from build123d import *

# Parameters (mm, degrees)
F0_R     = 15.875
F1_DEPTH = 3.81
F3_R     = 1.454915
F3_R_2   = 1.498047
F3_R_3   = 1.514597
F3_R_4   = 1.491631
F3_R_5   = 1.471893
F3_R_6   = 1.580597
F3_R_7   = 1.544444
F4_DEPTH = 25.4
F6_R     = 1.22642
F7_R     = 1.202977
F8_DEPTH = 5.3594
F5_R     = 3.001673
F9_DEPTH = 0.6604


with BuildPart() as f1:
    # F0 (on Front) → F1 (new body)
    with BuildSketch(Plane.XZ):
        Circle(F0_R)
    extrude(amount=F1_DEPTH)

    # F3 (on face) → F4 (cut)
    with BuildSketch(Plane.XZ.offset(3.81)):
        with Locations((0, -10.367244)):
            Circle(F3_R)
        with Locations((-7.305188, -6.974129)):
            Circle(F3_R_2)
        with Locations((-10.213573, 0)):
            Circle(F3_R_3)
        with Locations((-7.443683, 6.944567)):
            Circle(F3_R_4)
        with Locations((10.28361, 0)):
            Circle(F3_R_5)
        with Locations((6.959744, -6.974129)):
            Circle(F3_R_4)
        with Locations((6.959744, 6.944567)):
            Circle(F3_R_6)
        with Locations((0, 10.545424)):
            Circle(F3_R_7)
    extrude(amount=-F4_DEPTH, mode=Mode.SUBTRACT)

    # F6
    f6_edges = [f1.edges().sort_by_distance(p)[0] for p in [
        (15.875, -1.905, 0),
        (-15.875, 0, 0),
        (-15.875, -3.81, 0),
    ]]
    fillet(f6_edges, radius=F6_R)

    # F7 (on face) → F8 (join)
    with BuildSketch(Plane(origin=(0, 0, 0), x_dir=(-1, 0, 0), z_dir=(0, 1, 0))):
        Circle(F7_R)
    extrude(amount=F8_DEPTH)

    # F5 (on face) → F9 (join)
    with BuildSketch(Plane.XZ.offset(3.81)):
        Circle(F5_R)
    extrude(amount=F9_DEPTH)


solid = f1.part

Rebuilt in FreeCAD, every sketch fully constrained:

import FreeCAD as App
import Part
import Sketcher
Q = App.Units.Quantity


def edges_at(feature, points):
    """Names of the edges that pass closest to the given points."""
    edges = feature.Shape.Edges
    near = lambda p: min(range(len(edges)), key=lambda i: edges[i].distToShape(Part.Vertex(*p))[0])
    return sorted({f"Edge{near(p) + 1}" for p in points})

doc = App.newDocument("Part")
body = doc.addObject("PartDesign::Body", "Body")

sketch1 = body.newObject("Sketcher::SketchObject", "Sketch")
sketch1.AttachmentSupport = (doc.getObject("XZ_Plane"), [""])
sketch1.MapMode = "FlatFace"
sketch1.addGeometry(Part.Circle(App.Vector(0, 0, 0), App.Vector(0, 0, 1), 15.875), False)
sketch1.addConstraint([
    Sketcher.Constraint("Coincident", 0, 3, -1, 1),
    Sketcher.Constraint("Diameter", 0, Q("1.25 in")),
])
pad1 = body.newObject("PartDesign::Pad", "Pad")
pad1.Profile = sketch1
pad1.Length = Q("0.15 in")

sketch2 = body.newObject("Sketcher::SketchObject", "Sketch001")
sketch2.AttachmentSupport = (doc.getObject("XZ_Plane"), [""])
sketch2.MapMode = "FlatFace"
sketch2.AttachmentOffset = App.Placement(App.Vector(0, 0, 0.15 * 25.4), App.Rotation())
sketch2.addGeometry([
    Part.Circle(App.Vector(0, -10.367244, 0), App.Vector(0, 0, 1), 1.454915),
    Part.Circle(App.Vector(-7.305188, -6.974129, 0), App.Vector(0, 0, 1), 1.498047),
    Part.Circle(App.Vector(-10.213573, 0, 0), App.Vector(0, 0, 1), 1.514597),
    Part.Circle(App.Vector(-7.443683, 6.944567, 0), App.Vector(0, 0, 1), 1.491631),
    Part.Circle(App.Vector(10.28361, 0, 0), App.Vector(0, 0, 1), 1.471893),
    Part.Circle(App.Vector(6.959744, -6.974129, 0), App.Vector(0, 0, 1), 1.491631),
    Part.Circle(App.Vector(6.959744, 6.944567, 0), App.Vector(0, 0, 1), 1.580597),
    Part.Circle(App.Vector(0, 10.545424, 0), App.Vector(0, 0, 1), 1.544444),
], False)
sketch2.addConstraint([
    Sketcher.Constraint("Equal", 3, 5),
    Sketcher.Constraint("PointOnObject", 0, 3, -2),
    Sketcher.Constraint("PointOnObject", 2, 3, -1),
    Sketcher.Constraint("PointOnObject", 4, 3, -1),
    Sketcher.Constraint("PointOnObject", 7, 3, -2),
    Sketcher.Constraint("Horizontal", 1, 3, 5, 3),
    Sketcher.Constraint("Horizontal", 3, 3, 6, 3),
    Sketcher.Constraint("Vertical", 5, 3, 6, 3),
    Sketcher.Constraint("Diameter", 0, 2.90983),
    Sketcher.Constraint("Diameter", 3, 2.983262),
    Sketcher.Constraint("Diameter", 1, 2.996094),
    Sketcher.Constraint("Diameter", 2, 3.029194),
    Sketcher.Constraint("Diameter", 4, 2.943786),
    Sketcher.Constraint("Diameter", 6, 3.161194),
    Sketcher.Constraint("Diameter", 7, 3.088888),
    Sketcher.Constraint("DistanceX", 1, 3, 4, 3, 17.588798),
    Sketcher.Constraint("DistanceX", 1, 3, -1, 1, 7.305188),
    Sketcher.Constraint("DistanceY", 1, 3, -1, 1, 6.974129),
    Sketcher.Constraint("DistanceX", 2, 3, 3, 3, 2.76989),
    Sketcher.Constraint("DistanceY", 0, 3, 3, 3, 17.311811),
    Sketcher.Constraint("DistanceY", 0, 3, -1, 1, 10.367244),
    Sketcher.Constraint("DistanceX", 2, 3, -1, 1, 10.213573),
    Sketcher.Constraint("DistanceX", -1, 1, 5, 3, 6.959744),
    Sketcher.Constraint("DistanceY", -1, 1, 7, 3, 10.545424),
])
pocket1 = body.newObject("PartDesign::Pocket", "Pocket")
pocket1.Profile = sketch2
pocket1.Length = Q("1 in")
doc.recompute()

fillet = body.newObject("PartDesign::Fillet", "Fillet")
fillet.Base = (pocket1, edges_at(pocket1, [(15.875, -1.905, 0), (-15.875, 0, 0), (-15.875, -3.81, 0)]))
fillet.Radius = 1.22642

sketch3 = body.newObject("Sketcher::SketchObject", "Sketch002")
sketch3.AttachmentSupport = (doc.getObject("XZ_Plane"), [""])
sketch3.MapMode = "FlatFace"
sketch3.addGeometry(Part.Circle(App.Vector(0, 0, 0), App.Vector(0, 0, 1), 1.202977), False)
sketch3.addConstraint([
    Sketcher.Constraint("Coincident", 0, 3, -1, 1),
    Sketcher.Constraint("Diameter", 0, 2.405954),
])
pad2 = body.newObject("PartDesign::Pad", "Pad001")
pad2.Profile = sketch3
pad2.Length = Q("0.211 in")
pad2.Reversed = True

sketch4 = body.newObject("Sketcher::SketchObject", "Sketch003")
sketch4.AttachmentSupport = (doc.getObject("XZ_Plane"), [""])
sketch4.MapMode = "FlatFace"
sketch4.AttachmentOffset = App.Placement(App.Vector(0, 0, 0.15 * 25.4), App.Rotation())
sketch4.addGeometry(Part.Circle(App.Vector(0, 0, 0), App.Vector(0, 0, 1), 3.001673), False)
sketch4.addConstraint([
    Sketcher.Constraint("Coincident", 0, 3, -1, 1),
    Sketcher.Constraint("Diameter", 0, 6.003346),
])
pad3 = body.newObject("PartDesign::Pad", "Pad002")
pad3.Profile = sketch4
pad3.Length = Q("0.026 in")

doc.recompute()
